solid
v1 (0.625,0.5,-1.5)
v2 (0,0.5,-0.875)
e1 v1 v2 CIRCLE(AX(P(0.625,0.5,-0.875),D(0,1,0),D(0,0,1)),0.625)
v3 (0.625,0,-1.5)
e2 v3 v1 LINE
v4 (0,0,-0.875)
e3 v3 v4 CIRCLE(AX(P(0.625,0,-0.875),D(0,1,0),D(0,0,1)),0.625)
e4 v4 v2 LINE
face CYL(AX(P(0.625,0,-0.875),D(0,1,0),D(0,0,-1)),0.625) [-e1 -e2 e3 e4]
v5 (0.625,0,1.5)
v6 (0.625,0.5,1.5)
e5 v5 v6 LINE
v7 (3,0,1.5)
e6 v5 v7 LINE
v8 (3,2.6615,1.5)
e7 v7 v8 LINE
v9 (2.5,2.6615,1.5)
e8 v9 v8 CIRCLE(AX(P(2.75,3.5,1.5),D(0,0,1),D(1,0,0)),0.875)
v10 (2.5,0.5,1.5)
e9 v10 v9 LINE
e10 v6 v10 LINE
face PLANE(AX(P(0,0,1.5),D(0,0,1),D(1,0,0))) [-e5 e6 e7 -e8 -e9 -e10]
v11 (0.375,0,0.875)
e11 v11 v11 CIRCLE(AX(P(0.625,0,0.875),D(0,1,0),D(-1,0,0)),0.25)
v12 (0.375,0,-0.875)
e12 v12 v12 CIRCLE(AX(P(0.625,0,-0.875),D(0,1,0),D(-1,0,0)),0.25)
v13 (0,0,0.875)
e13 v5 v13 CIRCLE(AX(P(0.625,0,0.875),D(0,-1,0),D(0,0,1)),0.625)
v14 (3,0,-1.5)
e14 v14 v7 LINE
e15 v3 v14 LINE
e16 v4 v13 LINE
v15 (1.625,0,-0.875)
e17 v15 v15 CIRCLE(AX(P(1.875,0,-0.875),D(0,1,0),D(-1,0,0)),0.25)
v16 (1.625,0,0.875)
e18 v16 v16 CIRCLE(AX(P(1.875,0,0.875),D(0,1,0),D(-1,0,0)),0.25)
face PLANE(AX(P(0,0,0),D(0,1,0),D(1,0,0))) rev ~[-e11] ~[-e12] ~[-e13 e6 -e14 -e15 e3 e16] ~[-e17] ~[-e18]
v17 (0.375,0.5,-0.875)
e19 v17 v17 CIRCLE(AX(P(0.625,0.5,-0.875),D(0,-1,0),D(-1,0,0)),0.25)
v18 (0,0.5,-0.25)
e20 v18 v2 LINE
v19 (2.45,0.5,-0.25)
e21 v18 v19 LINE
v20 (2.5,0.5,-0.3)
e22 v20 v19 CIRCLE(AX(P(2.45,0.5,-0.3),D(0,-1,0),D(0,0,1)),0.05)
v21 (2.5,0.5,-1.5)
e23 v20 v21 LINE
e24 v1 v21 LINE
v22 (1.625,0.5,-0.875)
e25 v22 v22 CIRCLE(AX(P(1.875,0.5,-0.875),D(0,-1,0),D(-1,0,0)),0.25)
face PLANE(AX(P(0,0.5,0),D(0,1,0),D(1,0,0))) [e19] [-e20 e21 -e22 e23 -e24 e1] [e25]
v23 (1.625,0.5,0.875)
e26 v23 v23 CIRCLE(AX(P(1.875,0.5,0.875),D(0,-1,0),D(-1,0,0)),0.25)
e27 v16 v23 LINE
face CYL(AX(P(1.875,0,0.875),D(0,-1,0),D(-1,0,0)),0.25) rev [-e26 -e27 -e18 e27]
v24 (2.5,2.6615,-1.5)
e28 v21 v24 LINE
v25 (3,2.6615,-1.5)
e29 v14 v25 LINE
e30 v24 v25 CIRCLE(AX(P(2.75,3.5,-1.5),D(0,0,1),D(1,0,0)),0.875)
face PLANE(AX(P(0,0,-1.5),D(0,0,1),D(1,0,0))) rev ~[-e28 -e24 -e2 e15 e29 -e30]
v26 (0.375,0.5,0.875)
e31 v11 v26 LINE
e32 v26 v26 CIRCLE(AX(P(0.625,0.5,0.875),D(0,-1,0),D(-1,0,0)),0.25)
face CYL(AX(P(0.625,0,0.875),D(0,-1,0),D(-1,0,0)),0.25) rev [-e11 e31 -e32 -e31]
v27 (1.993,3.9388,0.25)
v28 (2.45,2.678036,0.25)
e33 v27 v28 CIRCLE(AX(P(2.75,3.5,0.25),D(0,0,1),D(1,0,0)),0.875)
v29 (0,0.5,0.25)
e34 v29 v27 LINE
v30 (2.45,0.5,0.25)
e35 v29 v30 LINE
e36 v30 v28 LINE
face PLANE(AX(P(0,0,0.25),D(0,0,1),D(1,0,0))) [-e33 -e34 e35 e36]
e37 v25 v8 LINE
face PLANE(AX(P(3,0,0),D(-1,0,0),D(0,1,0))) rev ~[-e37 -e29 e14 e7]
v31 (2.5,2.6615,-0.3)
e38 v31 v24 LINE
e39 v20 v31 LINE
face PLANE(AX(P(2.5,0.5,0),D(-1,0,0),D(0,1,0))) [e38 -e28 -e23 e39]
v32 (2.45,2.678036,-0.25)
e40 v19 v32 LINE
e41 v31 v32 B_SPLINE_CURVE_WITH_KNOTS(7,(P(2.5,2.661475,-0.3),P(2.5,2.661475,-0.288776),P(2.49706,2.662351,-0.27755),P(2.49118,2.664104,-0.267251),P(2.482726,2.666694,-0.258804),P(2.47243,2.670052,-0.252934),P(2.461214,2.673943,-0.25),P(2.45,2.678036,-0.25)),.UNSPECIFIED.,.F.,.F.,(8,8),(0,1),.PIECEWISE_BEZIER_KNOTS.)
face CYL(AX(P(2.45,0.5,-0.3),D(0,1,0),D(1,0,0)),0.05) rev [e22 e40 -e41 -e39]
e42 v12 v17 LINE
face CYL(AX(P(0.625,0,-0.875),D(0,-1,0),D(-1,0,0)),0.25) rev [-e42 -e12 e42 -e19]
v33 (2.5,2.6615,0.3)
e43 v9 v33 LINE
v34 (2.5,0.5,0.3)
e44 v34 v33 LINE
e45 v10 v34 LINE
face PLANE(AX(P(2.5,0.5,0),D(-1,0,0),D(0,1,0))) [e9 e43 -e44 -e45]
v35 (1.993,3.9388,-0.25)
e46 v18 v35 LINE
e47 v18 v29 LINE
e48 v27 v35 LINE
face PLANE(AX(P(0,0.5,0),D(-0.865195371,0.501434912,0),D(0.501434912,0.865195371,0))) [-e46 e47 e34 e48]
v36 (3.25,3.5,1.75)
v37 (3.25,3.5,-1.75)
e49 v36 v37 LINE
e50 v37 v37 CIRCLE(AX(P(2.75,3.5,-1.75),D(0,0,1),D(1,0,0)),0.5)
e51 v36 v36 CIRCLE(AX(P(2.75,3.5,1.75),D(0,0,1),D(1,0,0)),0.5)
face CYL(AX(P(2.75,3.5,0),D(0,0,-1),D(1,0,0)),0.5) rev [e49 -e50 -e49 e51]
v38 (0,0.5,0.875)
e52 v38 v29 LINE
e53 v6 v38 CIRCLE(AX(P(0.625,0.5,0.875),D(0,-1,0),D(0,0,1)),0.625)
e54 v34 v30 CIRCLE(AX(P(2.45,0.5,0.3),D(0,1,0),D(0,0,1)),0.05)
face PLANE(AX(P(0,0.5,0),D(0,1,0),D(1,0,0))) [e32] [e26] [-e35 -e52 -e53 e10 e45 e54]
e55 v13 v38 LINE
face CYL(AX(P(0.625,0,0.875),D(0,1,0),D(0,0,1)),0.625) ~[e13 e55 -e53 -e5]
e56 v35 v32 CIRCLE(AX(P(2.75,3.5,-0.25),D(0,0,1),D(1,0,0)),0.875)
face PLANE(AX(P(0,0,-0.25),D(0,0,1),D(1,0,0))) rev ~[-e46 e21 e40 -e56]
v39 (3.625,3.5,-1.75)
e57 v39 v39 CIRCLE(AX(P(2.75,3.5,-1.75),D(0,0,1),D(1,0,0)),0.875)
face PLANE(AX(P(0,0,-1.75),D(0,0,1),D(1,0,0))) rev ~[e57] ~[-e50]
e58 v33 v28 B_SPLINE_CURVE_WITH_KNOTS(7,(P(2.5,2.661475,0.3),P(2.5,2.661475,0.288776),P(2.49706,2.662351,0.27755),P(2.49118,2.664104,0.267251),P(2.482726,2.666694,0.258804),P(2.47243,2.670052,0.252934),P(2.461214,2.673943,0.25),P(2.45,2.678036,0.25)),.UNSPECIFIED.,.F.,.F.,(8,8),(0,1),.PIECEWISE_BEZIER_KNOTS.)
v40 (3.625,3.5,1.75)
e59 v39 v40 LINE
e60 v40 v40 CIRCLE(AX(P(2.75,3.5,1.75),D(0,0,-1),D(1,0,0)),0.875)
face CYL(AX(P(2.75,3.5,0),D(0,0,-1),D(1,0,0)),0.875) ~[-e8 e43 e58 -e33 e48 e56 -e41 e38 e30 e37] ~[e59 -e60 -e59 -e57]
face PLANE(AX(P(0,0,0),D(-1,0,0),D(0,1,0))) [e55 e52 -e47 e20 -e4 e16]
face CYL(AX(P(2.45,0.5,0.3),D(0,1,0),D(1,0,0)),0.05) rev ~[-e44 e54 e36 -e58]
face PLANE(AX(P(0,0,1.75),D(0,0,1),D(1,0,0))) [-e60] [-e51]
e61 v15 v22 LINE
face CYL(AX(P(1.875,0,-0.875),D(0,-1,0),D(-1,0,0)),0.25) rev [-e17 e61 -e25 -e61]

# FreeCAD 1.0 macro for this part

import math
import FreeCAD as App
import Part
import Sketcher
from FreeCAD import Vector


def edges_at(feature, points):
    """Names of the edges that pass closest to the given points."""
    edges = feature.Shape.Edges
    near = lambda p: min(range(len(edges)), key=lambda i: edges[i].distToShape(Part.Vertex(*p))[0])
    return sorted({f"Edge{near(p) + 1}" for p in points})

doc = App.newDocument("Part")
body = doc.addObject("PartDesign::Body", "Body")

# Sketch on XY plane
sketch1 = body.newObject("Sketcher::SketchObject", "Sketch")
sketch1.AttachmentSupport = (doc.getObject("XY_Plane"), [""])
sketch1.MapMode = "FlatFace"
sketch1.addGeometry(Part.LineSegment(Vector(0, 0.5, 0), Vector(0, 0, 0)), False)
sketch1.addGeometry(Part.LineSegment(Vector(0, 0, 0), Vector(3, 0, 0)), False)
sketch1.addGeometry(Part.LineSegment(Vector(3, 0, 0), Vector(3, 2.7, 0)), False)
sketch1.addGeometry(Part.ArcOfCircle(Part.Circle(Vector(2.8, 3.5, 0), Vector(0, 0, 1), 0.9), math.radians(-107), math.radians(-73)), False)
sketch1.addGeometry(Part.LineSegment(Vector(2.5, 2.7, 0), Vector(2.5, 0.5, 0)), False)
sketch1.addGeometry(Part.LineSegment(Vector(2.5, 0.5, 0), Vector(0, 0.5, 0)), False)
sketch1.addConstraint(Sketcher.Constraint("Coincident", 0, 2, 1, 1))
sketch1.addConstraint(Sketcher.Constraint("Coincident", 1, 2, 2, 1))
sketch1.addConstraint(Sketcher.Constraint("Coincident", 2, 2, 3, 2))
sketch1.addConstraint(Sketcher.Constraint("Coincident", 3, 1, 4, 1))
sketch1.addConstraint(Sketcher.Constraint("Coincident", 4, 2, 5, 1))
sketch1.addConstraint(Sketcher.Constraint("Coincident", 5, 2, 0, 1))
sketch1.addConstraint(Sketcher.Constraint("Vertical", 0))
sketch1.addConstraint(Sketcher.Constraint("Horizontal", 1))
sketch1.addConstraint(Sketcher.Constraint("Vertical", 2))
sketch1.addConstraint(Sketcher.Constraint("Vertical", 4))
sketch1.addConstraint(Sketcher.Constraint("Horizontal", 5))
sketch1.addConstraint(Sketcher.Constraint("Coincident", 0, 2, -1, 1))
sketch1.addConstraint(Sketcher.Constraint("Horizontal", 2, 2, 3, 1))
sketch1.addConstraint(Sketcher.Constraint("DistanceX", 1, 1, 1, 2, 3.0))
sketch1.addConstraint(Sketcher.Constraint("DistanceY", 0, 2, 0, 1, 0.5))
sketch1.addConstraint(Sketcher.Constraint("Radius", 3, 0.875))
sketch1.addConstraint(Sketcher.Constraint("DistanceY", 4, 2, 3, 3, 3.0))
sketch1.addConstraint(Sketcher.Constraint("DistanceX", 3, 1, 2, 2, 0.5))
pad1 = body.newObject("PartDesign::Pad", "Pad")
pad1.Profile = sketch1
pad1.Length = 3
pad1.Midplane = True

# Sketch on XY plane
sketch2 = body.newObject("Sketcher::SketchObject", "Sketch001")
sketch2.AttachmentSupport = (doc.getObject("XY_Plane"), [""])
sketch2.MapMode = "FlatFace"
sketch2.addGeometry(Part.Circle(Vector(2.8, 3.5, 0), Vector(0, 0, 1), 0.9), False)
sketch2.addGeometry(Part.Circle(Vector(2.8, 3.5, 0), Vector(0, 0, 1), 0.5), False)
sketch2.addConstraint(Sketcher.Constraint("Coincident", 1, 3, 0, 3))
sketch2.addConstraint(Sketcher.Constraint("Diameter", 1, 1.0))
sketch2.addConstraint(Sketcher.Constraint("Diameter", 0, 1.75))
sketch2.addConstraint(Sketcher.Constraint("DistanceY", -1, 1, 0, 3, 3.5))
sketch2.addConstraint(Sketcher.Constraint("DistanceX", -1, 1, 0, 3, 2.75))
pad2 = body.newObject("PartDesign::Pad", "Pad001")
pad2.Profile = sketch2
pad2.Length = 3.5
pad2.Midplane = True

# Sketch on XY plane
sketch3 = body.newObject("Sketcher::SketchObject", "Sketch002")
sketch3.AttachmentSupport = (doc.getObject("XY_Plane"), [""])
sketch3.MapMode = "FlatFace"
sketch3.addGeometry(Part.LineSegment(Vector(2, 3.9, 0), Vector(0, 0.5, 0)), False)
sketch3.addGeometry(Part.LineSegment(Vector(0, 0.5, 0), Vector(2.5, 0.5, 0)), False)
sketch3.addGeometry(Part.LineSegment(Vector(2.5, 0.5, 0), Vector(2.5, 2.7, 0)), False)
sketch3.addGeometry(Part.ArcOfCircle(Part.Circle(Vector(2.8, 3.5, 0), Vector(0, 0, 1), 0.9), math.radians(150), math.radians(253)), False)
sketch3.addConstraint(Sketcher.Constraint("Coincident", 0, 2, 1, 1))
sketch3.addConstraint(Sketcher.Constraint("Coincident", 1, 2, 2, 1))
sketch3.addConstraint(Sketcher.Constraint("Coincident", 2, 2, 3, 2))
sketch3.addConstraint(Sketcher.Constraint("Tangent", 3, 1, 0, 1))
sketch3.addConstraint(Sketcher.Constraint("Horizontal", 1))
sketch3.addConstraint(Sketcher.Constraint("Vertical", 2))
sketch3.addConstraint(Sketcher.Constraint("PointOnObject", 0, 2, -2))
sketch3.addConstraint(Sketcher.Constraint("Radius", 3, 0.875))
sketch3.addConstraint(Sketcher.Constraint("DistanceY", 0, 2, 3, 3, 3.0))
sketch3.addConstraint(Sketcher.Constraint("DistanceY", -1, 1, 0, 2, 0.5))
sketch3.addConstraint(Sketcher.Constraint("DistanceX", 1, 1, 1, 2, 2.5))
sketch3.addConstraint(Sketcher.Constraint("DistanceX", -1, 1, 3, 3, 2.75))
pad3 = body.newObject("PartDesign::Pad", "Pad002")
pad3.Profile = sketch3
pad3.Length = 0.5
pad3.Midplane = True
doc.recompute()

fillet = body.newObject("PartDesign::Fillet", "Fillet")
fillet.Base = (pad3, edges_at(pad3, [(0, 0.25, 1.5), (0, 0.25, -1.5)]))
fillet.Radius = 0.625

# Sketch on XZ plane
sketch4 = body.newObject("Sketcher::SketchObject", "Sketch003")
sketch4.AttachmentSupport = (doc.getObject("XZ_Plane"), [""])
sketch4.MapMode = "FlatFace"
sketch4.addGeometry(Part.Circle(Vector(0.62, -0.88, 0), Vector(0, 0, 1), 0.25), False)
sketch4.addGeometry(Part.Circle(Vector(1.88, -0.88, 0), Vector(0, 0, 1), 0.25), False)
sketch4.addGeometry(Part.Circle(Vector(0.62, 0.88, 0), Vector(0, 0, 1), 0.25), False)
sketch4.addGeometry(Part.Circle(Vector(1.88, 0.88, 0), Vector(0, 0, 1), 0.25), False)
sketch4.addConstraint(Sketcher.Constraint("Equal", 0, 1))
sketch4.addConstraint(Sketcher.Constraint("Equal", 1, 2))
sketch4.addConstraint(Sketcher.Constraint("Equal", 2, 3))
sketch4.addConstraint(Sketcher.Constraint("Symmetric", 0, 3, 2, 3, -1))
sketch4.addConstraint(Sketcher.Constraint("Symmetric", 1, 3, 3, 3, -1))
sketch4.addConstraint(Sketcher.Constraint("Horizontal", 0, 3, 1, 3))
sketch4.addConstraint(Sketcher.Constraint("Diameter", 0, 0.5))
sketch4.addConstraint(Sketcher.Constraint("DistanceX", 0, 3, 1, 3, 1.25))
sketch4.addConstraint(Sketcher.Constraint("DistanceY", 0, 3, 2, 3, 1.75))
sketch4.addConstraint(Sketcher.Constraint("DistanceX", -1, 1, 0, 3, 0.625))
pocket1 = body.newObject("PartDesign::Pocket", "Pocket")
pocket1.Profile = sketch4
pocket1.Length = 0.6
doc.recompute()

fillet2 = body.newObject("PartDesign::Fillet", "Fillet001")
fillet2.Base = (pocket1, edges_at(pocket1, [(2.5, 1.581, -0.25), (2.5, 1.581, 0.25)]))
fillet2.Radius = 0.05

doc.recompute()
